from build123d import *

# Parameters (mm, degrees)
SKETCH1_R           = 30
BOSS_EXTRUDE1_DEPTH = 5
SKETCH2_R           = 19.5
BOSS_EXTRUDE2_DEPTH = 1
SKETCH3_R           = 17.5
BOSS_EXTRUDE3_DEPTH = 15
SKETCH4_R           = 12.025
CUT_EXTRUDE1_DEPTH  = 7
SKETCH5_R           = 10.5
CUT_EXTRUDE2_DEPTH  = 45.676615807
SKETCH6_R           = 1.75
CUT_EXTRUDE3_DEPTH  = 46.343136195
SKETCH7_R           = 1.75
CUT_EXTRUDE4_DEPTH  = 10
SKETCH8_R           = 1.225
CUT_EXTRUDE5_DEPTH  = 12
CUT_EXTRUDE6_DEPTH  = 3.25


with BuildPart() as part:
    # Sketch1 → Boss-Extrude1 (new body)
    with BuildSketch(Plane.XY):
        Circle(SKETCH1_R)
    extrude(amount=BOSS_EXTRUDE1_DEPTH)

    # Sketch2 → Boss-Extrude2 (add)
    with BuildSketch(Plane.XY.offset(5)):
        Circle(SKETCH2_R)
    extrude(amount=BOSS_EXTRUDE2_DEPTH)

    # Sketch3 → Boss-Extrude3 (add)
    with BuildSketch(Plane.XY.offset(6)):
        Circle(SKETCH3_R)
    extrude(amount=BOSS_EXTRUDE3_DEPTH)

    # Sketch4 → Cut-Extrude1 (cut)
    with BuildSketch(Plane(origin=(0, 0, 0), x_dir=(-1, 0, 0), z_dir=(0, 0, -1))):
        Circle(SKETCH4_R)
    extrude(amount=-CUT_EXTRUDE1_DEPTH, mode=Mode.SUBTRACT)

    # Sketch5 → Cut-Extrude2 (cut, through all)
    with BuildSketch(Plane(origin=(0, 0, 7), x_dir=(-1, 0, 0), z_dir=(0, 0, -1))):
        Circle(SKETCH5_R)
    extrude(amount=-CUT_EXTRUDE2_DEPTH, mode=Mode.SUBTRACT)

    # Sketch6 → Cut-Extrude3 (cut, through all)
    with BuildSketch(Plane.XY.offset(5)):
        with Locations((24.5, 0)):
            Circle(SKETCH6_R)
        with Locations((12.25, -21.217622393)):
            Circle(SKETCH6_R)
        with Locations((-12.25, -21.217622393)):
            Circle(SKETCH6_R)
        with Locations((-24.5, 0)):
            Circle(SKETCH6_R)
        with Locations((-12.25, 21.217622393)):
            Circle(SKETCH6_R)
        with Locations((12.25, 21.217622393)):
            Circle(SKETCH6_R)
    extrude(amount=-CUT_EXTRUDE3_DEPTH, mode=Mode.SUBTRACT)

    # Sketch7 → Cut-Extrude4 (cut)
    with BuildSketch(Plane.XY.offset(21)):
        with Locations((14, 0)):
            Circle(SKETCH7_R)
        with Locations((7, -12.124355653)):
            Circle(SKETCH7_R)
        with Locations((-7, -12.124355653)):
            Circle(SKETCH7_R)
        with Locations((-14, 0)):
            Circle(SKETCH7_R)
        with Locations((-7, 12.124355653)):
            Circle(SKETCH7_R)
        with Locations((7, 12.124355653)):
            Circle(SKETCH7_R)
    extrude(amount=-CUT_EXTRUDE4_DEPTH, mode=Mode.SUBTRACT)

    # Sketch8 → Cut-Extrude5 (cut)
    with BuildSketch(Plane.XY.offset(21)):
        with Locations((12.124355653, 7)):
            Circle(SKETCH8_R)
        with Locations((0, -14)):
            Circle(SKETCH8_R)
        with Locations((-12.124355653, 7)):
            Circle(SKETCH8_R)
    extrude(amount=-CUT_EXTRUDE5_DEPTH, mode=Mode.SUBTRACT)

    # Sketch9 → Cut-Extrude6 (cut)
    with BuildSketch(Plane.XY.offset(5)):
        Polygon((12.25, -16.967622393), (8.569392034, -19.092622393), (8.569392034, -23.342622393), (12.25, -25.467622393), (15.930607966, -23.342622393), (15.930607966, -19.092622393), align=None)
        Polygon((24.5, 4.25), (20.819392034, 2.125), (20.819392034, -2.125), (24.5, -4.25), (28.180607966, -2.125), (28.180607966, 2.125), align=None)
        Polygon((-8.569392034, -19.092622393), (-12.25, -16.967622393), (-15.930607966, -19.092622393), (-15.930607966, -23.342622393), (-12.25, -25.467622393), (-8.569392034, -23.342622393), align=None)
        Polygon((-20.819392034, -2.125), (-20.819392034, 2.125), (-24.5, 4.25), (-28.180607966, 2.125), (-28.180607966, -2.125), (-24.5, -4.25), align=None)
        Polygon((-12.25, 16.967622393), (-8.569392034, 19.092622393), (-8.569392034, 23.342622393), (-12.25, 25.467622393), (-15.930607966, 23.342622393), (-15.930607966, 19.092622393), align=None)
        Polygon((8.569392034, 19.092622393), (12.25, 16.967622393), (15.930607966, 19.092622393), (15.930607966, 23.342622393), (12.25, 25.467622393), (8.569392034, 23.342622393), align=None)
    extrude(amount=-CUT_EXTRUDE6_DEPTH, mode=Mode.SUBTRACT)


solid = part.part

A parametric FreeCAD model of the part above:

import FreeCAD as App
import Part
import Sketcher
from FreeCAD import Vector
Q = App.Units.Quantity


def add_polygon(sketch, points):
    """Adds a closed chain of lines whose ends are joined by coincident constraints."""
    first, n = sketch.GeometryCount, len(points)
    for a, b in zip(points, points[1:] + points[:1]):
        sketch.addGeometry(Part.LineSegment(App.Vector(*a, 0), App.Vector(*b, 0)), False)
    for i in range(n):
        sketch.addConstraint(Sketcher.Constraint("Coincident", first + i, 2, first + (i + 1) % n, 1))

doc = App.newDocument("Part")
body = doc.addObject("PartDesign::Body", "Body")

# Sketch on XY plane
sketch1 = body.newObject("Sketcher::SketchObject", "Sketch")
sketch1.AttachmentSupport = (doc.getObject("XY_Plane"), [""])
sketch1.MapMode = "FlatFace"
sketch1.addGeometry(Part.Circle(Vector(0, 0, 0), Vector(0, 0, 1), 30), False)
sketch1.addConstraint([
    Sketcher.Constraint("Coincident", 0, 3, -1, 1),
    Sketcher.Constraint("Diameter", 0, Q("60 mm")),
])
pad1 = body.newObject("PartDesign::Pad", "Pad")
pad1.Profile = sketch1
pad1.Length = 5

# Sketch on XY plane
sketch2 = body.newObject("Sketcher::SketchObject", "Sketch001")
sketch2.AttachmentSupport = (doc.getObject("XY_Plane"), [""])
sketch2.MapMode = "FlatFace"
sketch2.AttachmentOffset = App.Placement(Vector(0, 0, 5), App.Rotation())
sketch2.addGeometry(Part.Circle(Vector(0, 0, 0), Vector(0, 0, 1), 20), False)
sketch2.addConstraint([
    Sketcher.Constraint("Coincident", 0, 3, -1, 1),
    Sketcher.Constraint("Diameter", 0, Q("39 mm")),
])
pad2 = body.newObject("PartDesign::Pad", "Pad001")
pad2.Profile = sketch2
pad2.Length = 1

# Sketch on XY plane
sketch3 = body.newObject("Sketcher::SketchObject", "Sketch002")
sketch3.AttachmentSupport = (doc.getObject("XY_Plane"), [""])
sketch3.MapMode = "FlatFace"
sketch3.AttachmentOffset = App.Placement(Vector(0, 0, 6), App.Rotation())
sketch3.addGeometry(Part.Circle(Vector(0, 0, 0), Vector(0, 0, 1), 18), False)
sketch3.addConstraint([
    Sketcher.Constraint("Coincident", 0, 3, -1, 1),
    Sketcher.Constraint("Diameter", 0, Q("35 mm")),
])
pad3 = body.newObject("PartDesign::Pad", "Pad002")
pad3.Profile = sketch3
pad3.Length = 15

# Sketch on XY plane
sketch4 = body.newObject("Sketcher::SketchObject", "Sketch003")
sketch4.AttachmentSupport = (doc.getObject("XY_Plane"), [""])
sketch4.MapMode = "FlatFace"
sketch4.addGeometry(Part.Circle(Vector(0, 0, 0), Vector(0, 0, 1), 12), False)
sketch4.addConstraint([
    Sketcher.Constraint("Coincident", 0, 3, -1, 1),
    Sketcher.Constraint("Diameter", 0, Q("24.05 mm")),
])
pocket1 = body.newObject("PartDesign::Pocket", "Pocket")
pocket1.Profile = sketch4
pocket1.Length = 7
pocket1.Reversed = True

# Sketch on XY plane
sketch5 = body.newObject("Sketcher::SketchObject", "Sketch004")
sketch5.AttachmentSupport = (doc.getObject("XY_Plane"), [""])
sketch5.MapMode = "FlatFace"
sketch5.AttachmentOffset = App.Placement(Vector(0, 0, 7), App.Rotation())
sketch5.addGeometry(Part.Circle(Vector(0, 0, 0), Vector(0, 0, 1), 10), False)
sketch5.addConstraint([
    Sketcher.Constraint("Coincident", 0, 3, -1, 1),
    Sketcher.Constraint("Diameter", 0, Q("21 mm")),
])
pocket2 = body.newObject("PartDesign::Pocket", "Pocket001")
pocket2.Profile = sketch5
pocket2.Type = "ThroughAll"
pocket2.Reversed = True

# Sketch on XY plane
sketch6 = body.newObject("Sketcher::SketchObject", "Sketch005")
sketch6.AttachmentSupport = (doc.getObject("XY_Plane"), [""])
sketch6.MapMode = "FlatFace"
sketch6.AttachmentOffset = App.Placement(Vector(0, 0, 5), App.Rotation())
sketch6.addGeometry([
    Part.Circle(Vector(24.5, 0, 0), Vector(0, 0, 1), 1.8),  # 0
    Part.Circle(Vector(12.2, -21.2, 0), Vector(0, 0, 1), 1.8),  # 1
    Part.Circle(Vector(-12.2, -21.2, 0), Vector(0, 0, 1), 1.8),  # 2
    Part.Circle(Vector(-24.5, 0, 0), Vector(0, 0, 1), 1.8),  # 3
    Part.Circle(Vector(-12.2, 21.2, 0), Vector(0, 0, 1), 1.8),  # 4
    Part.Circle(Vector(12.2, 21.2, 0), Vector(0, 0, 1), 1.8),  # 5
], False)
sketch6.addConstraint([
    Sketcher.Constraint("Equal", 0, 1),
    Sketcher.Constraint("Equal", 1, 2),
    Sketcher.Constraint("Equal", 2, 3),
    Sketcher.Constraint("Equal", 3, 4),
    Sketcher.Constraint("Equal", 4, 5),
    Sketcher.Constraint("Symmetric", 0, 3, 3, 3, -1, 1),
    Sketcher.Constraint("Symmetric", 1, 3, 4, 3, -1, 1),
    Sketcher.Constraint("Symmetric", 2, 3, 5, 3, -1, 1),
    Sketcher.Constraint("Symmetric", 1, 3, 2, 3, -2),
    Sketcher.Constraint("PointOnObject", 0, 3, -1),
    Sketcher.Constraint("Diameter", 0, Q("3.5 mm")),
    Sketcher.Constraint("DistanceX", 3, 3, 0, 3, Q("49 mm")),
    Sketcher.Constraint("DistanceX", 2, 3, 1, 3, Q("24.5 mm")),
    Sketcher.Constraint("DistanceY", 1, 3, -1, 1, Q("21.217622 mm")),
])
pocket3 = body.newObject("PartDesign::Pocket", "Pocket002")
pocket3.Profile = sketch6
pocket3.Type = "ThroughAll"

# Sketch on XY plane
sketch7 = body.newObject("Sketcher::SketchObject", "Sketch006")
sketch7.AttachmentSupport = (doc.getObject("XY_Plane"), [""])
sketch7.MapMode = "FlatFace"
sketch7.AttachmentOffset = App.Placement(Vector(0, 0, 21), App.Rotation())
sketch7.addGeometry([
    Part.Circle(Vector(14, 0, 0), Vector(0, 0, 1), 1.8),  # 0
    Part.Circle(Vector(7, -12.1, 0), Vector(0, 0, 1), 1.8),  # 1
    Part.Circle(Vector(-7, -12.1, 0), Vector(0, 0, 1), 1.8),  # 2
    Part.Circle(Vector(-14, 0, 0), Vector(0, 0, 1), 1.8),  # 3
    Part.Circle(Vector(-7, 12.1, 0), Vector(0, 0, 1), 1.8),  # 4
    Part.Circle(Vector(7, 12.1, 0), Vector(0, 0, 1), 1.8),  # 5
], False)
sketch7.addConstraint([
    Sketcher.Constraint("Equal", 0, 1),
    Sketcher.Constraint("Equal", 1, 2),
    Sketcher.Constraint("Equal", 2, 3),
    Sketcher.Constraint("Equal", 3, 4),
    Sketcher.Constraint("Equal", 4, 5),
    Sketcher.Constraint("Symmetric", 0, 3, 3, 3, -1, 1),
    Sketcher.Constraint("Symmetric", 1, 3, 4, 3, -1, 1),
    Sketcher.Constraint("Symmetric", 2, 3, 5, 3, -1, 1),
    Sketcher.Constraint("Symmetric", 1, 3, 2, 3, -2),
    Sketcher.Constraint("PointOnObject", 0, 3, -1),
    Sketcher.Constraint("Diameter", 0, Q("3.5 mm")),
    Sketcher.Constraint("DistanceX", -1, 1, 0, 3, Q("14 mm")),
    Sketcher.Constraint("DistanceX", -1, 1, 1, 3, Q("7 mm")),
    Sketcher.Constraint("DistanceY", 2, 3, 4, 3, Q("24.248711 mm")),
])
pocket4 = body.newObject("PartDesign::Pocket", "Pocket003")
pocket4.Profile = sketch7
pocket4.Length = 10

# Sketch on XY plane
sketch8 = body.newObject("Sketcher::SketchObject", "Sketch007")
sketch8.AttachmentSupport = (doc.getObject("XY_Plane"), [""])
sketch8.MapMode = "FlatFace"
sketch8.AttachmentOffset = App.Placement(Vector(0, 0, 21), App.Rotation())
sketch8.addGeometry([
    Part.Circle(Vector(12.1, 7, 0), Vector(0, 0, 1), 1.2),
    Part.Circle(Vector(0, -14, 0), Vector(0, 0, 1), 1.2),
    Part.Circle(Vector(-12.1, 7, 0), Vector(0, 0, 1), 1.2),
], False)
sketch8.addConstraint([
    Sketcher.Constraint("Equal", 0, 1),
    Sketcher.Constraint("Equal", 1, 2),
    Sketcher.Constraint("Symmetric", 0, 3, 2, 3, -2),
    Sketcher.Constraint("PointOnObject", 1, 3, -2),
    Sketcher.Constraint("Diameter", 0, Q("2.45 mm")),
    Sketcher.Constraint("DistanceY", -1, 1, 0, 3, Q("7 mm")),
    Sketcher.Constraint("DistanceY", 1, 3, -1, 1, Q("14 mm")),
    Sketcher.Constraint("DistanceX", 2, 3, 0, 3, Q("24.248711 mm")),
])
pocket5 = body.newObject("PartDesign::Pocket", "Pocket004")
pocket5.Profile = sketch8
pocket5.Length = 12

# Sketch on XY plane
sketch9 = body.newObject("Sketcher::SketchObject", "Sketch008")
sketch9.AttachmentSupport = (doc.getObject("XY_Plane"), [""])
sketch9.MapMode = "FlatFace"
sketch9.AttachmentOffset = App.Placement(Vector(0, 0, 5), App.Rotation())
add_polygon(sketch9, [(12.2, -17), (8.6, -19.1), (8.6, -23.3), (12.2, -25.5), (15.9, -23.3), (15.9, -19.1)])  # lines 0-5
add_polygon(sketch9, [(24.5, 4.2), (20.8, 2.1), (20.8, -2.1), (24.5, -4.2), (28.2, -2.1), (28.2, 2.1)])  # lines 6-11
add_polygon(sketch9, [(-8.6, -19.1), (-12.2, -17), (-15.9, -19.1), (-15.9, -23.3), (-12.2, -25.5), (-8.6, -23.3)])  # lines 12-17
add_polygon(sketch9, [(-20.8, -2.1), (-20.8, 2.1), (-24.5, 4.2), (-28.2, 2.1), (-28.2, -2.1), (-24.5, -4.2)])  # lines 18-23
add_polygon(sketch9, [(-12.2, 17), (-8.6, 19.1), (-8.6, 23.3), (-12.2, 25.5), (-15.9, 23.3), (-15.9, 19.1)])  # lines 24-29
add_polygon(sketch9, [(8.6, 19.1), (12.2, 17), (15.9, 19.1), (15.9, 23.3), (12.2, 25.5), (8.6, 23.3)])  # lines 30-35
sketch9.addConstraint([
    Sketcher.Constraint("Vertical", 1),
    Sketcher.Constraint("Vertical", 4),
    Sketcher.Constraint("Vertical", 7),
    Sketcher.Constraint("Vertical", 10),
    Sketcher.Constraint("Vertical", 14),
    Sketcher.Constraint("Vertical", 17),
    Sketcher.Constraint("Vertical", 18),
    Sketcher.Constraint("Vertical", 21),
    Sketcher.Constraint("Vertical", 25),
    Sketcher.Constraint("Vertical", 28),
    Sketcher.Constraint("Vertical", 32),
    Sketcher.Constraint("Vertical", 35),
    Sketcher.Constraint("Symmetric", 7, 2, 18, 2, -1, 1),
    Sketcher.Constraint("Symmetric", 8, 2, 19, 2, -1, 1),
    Sketcher.Constraint("Symmetric", 9, 2, 20, 2, -1, 1),
    Sketcher.Constraint("Symmetric", 11, 2, 22, 2, -1, 1),
    Sketcher.Constraint("Symmetric", 0, 2, 24, 2, -1, 1),
    Sketcher.Constraint("Symmetric", 2, 2, 26, 2, -1, 1),
    Sketcher.Constraint("Symmetric", 3, 2, 27, 2, -1, 1),
    Sketcher.Constraint("Symmetric", 5, 2, 29, 2, -1, 1),
    Sketcher.Constraint("Symmetric", 12, 2, 30, 2, -1, 1),
    Sketcher.Constraint("Symmetric", 13, 2, 31, 2, -1, 1),
    Sketcher.Constraint("Symmetric", 15, 2, 33, 2, -1, 1),
    Sketcher.Constraint("Symmetric", 16, 2, 34, 2, -1, 1),
    Sketcher.Constraint("Symmetric", 5, 2, 12, 2, -2),
    Sketcher.Constraint("Symmetric", 4, 2, 13, 2, -2),
    Sketcher.Constraint("Symmetric", 2, 2, 15, 2, -2),
    Sketcher.Constraint("Symmetric", 1, 2, 16, 2, -2),
    Sketcher.Constraint("Symmetric", 11, 2, 19, 2, -2),
    Sketcher.Constraint("Parallel", 0, 3),
    Sketcher.Constraint("Parallel", 2, 5),
    Sketcher.Constraint("Parallel", 3, 6),
    Sketcher.Constraint("Parallel", 5, 8),
    Sketcher.Constraint("Parallel", 6, 9),
    Sketcher.Constraint("Parallel", 8, 11),
    Sketcher.Constraint("Parallel", 11, 12),
    Sketcher.Constraint("Parallel", 9, 13),
    Sketcher.Constraint("Parallel", 12, 15),
    Sketcher.Constraint("Parallel", 19, 22),
    Sketcher.Constraint("Parallel", 20, 23),
    Sketcher.Constraint("Parallel", 22, 26),
    Sketcher.Constraint("Parallel", 26, 29),
    Sketcher.Constraint("Parallel", 29, 30),
    Sketcher.Constraint("Parallel", 30, 33),
    Sketcher.Constraint("Horizontal", 1, 2, 3, 2),
    Sketcher.Constraint("Horizontal", 0, 2, 4, 2),
    Sketcher.Constraint("Horizontal", 7, 2, 9, 2),
    Sketcher.Constraint("Equal", 4, 7),
    Sketcher.Constraint("Equal", 5, 6),
    Sketcher.Constraint("Angle", 0, Q("-150 deg")),
    Sketcher.Constraint("DistanceY", 1, 2, 1, 1, Q("4.25 mm")),
    Sketcher.Constraint("DistanceX", -1, 1, 8, 2, Q("24.5 mm")),
    Sketcher.Constraint("DistanceY", 2, 2, 5, 2, Q("8.5 mm")),
    Sketcher.Constraint("DistanceX", 12, 2, 5, 2, Q("24.5 mm")),
    Sketcher.Constraint("DistanceY", 0, 2, -1, 1, Q("19.092622 mm")),
])
pocket6 = body.newObject("PartDesign::Pocket", "Pocket005")
pocket6.Profile = sketch9
pocket6.Length = 3.25

doc.recompute()
